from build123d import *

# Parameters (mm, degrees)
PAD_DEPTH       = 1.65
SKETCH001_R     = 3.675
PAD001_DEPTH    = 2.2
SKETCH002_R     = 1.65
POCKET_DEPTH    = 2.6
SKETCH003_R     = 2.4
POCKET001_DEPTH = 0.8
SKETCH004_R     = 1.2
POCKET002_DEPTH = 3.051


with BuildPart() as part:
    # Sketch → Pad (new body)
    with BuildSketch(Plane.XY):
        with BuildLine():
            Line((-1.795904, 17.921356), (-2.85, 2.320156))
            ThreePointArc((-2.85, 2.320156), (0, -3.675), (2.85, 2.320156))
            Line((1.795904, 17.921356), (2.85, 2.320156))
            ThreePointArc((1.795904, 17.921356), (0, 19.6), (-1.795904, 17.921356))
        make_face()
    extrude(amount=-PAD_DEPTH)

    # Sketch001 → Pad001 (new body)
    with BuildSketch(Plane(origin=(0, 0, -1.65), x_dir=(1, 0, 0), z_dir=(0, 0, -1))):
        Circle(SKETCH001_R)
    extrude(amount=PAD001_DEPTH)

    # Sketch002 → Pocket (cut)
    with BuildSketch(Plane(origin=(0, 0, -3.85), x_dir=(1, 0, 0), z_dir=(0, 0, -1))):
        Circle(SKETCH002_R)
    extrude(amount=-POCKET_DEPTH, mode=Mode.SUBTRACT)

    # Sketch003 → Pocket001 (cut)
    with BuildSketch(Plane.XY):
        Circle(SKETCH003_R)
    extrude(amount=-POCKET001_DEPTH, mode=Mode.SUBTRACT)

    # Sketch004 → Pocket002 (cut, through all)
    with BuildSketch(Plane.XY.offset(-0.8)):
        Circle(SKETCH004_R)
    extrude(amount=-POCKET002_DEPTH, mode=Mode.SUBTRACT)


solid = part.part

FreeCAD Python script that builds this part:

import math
import FreeCAD as App
import Part
import Sketcher
from FreeCAD import Vector
Q = App.Units.Quantity

doc = App.newDocument("Part")
params = doc.addObject("Spreadsheet::Sheet", "Params")
for row, (alias, value) in enumerate([
    ("sketch1_radius", "1.8 mm"),
    ("pad1_length", "1.65 mm"),
    ("sketch2_diameter", "7.35 mm"),
    ("pad2_length", "2.2 mm"),
    ("sketch3_diameter", "3.3 mm"),
    ("pocket1_length", "2.6 mm"),
    ("sketch4_diameter", "4.8 mm"),
    ("pocket2_length", "0.8 mm"),
    ("sketch5_diameter", "2.4 mm"),
], start=1):
    params.set(f"A{row}", alias)
    params.set(f"B{row}", "=" + value)
    params.setAlias(f"B{row}", alias)

body = doc.addObject("PartDesign::Body", "Body")

sketch1 = body.newObject("Sketcher::SketchObject", "Sketch")
sketch1.AttachmentSupport = (doc.getObject("XY_Plane"), [""])
sketch1.MapMode = "FlatFace"
sketch1.addGeometry([
    Part.LineSegment(Vector(-1.795904, 17.921356, 0), Vector(-2.85, 2.320156, 0)),
    Part.ArcOfCircle(Part.Circle(Vector(0, 0, 0), Vector(0, 0, 1), 3.675), math.radians(140.851314), math.radians(399.148686)),
    Part.LineSegment(Vector(2.85, 2.320156, 0), Vector(1.795904, 17.921356, 0)),
    Part.ArcOfCircle(Part.Circle(Vector(0, 17.8, 0), Vector(0, 0, 1), 1.8), math.radians(3.8658), math.radians(176.1342)),
], False)
sketch1.addConstraint([
    Sketcher.Constraint("Coincident", 0, 2, 1, 1),
    Sketcher.Constraint("Coincident", 1, 2, 2, 1),
    Sketcher.Constraint("Coincident", 2, 2, 3, 1),
    Sketcher.Constraint("Coincident", 3, 2, 0, 1),
    Sketcher.Constraint("Coincident", 1, 3, -1, 1),
    Sketcher.Constraint("Symmetric", 2, 2, 3, 2, -2),
    Sketcher.Constraint("Horizontal", 0, 2, 1, 2),
    Sketcher.Constraint("Radius", 3, Q("1.8 mm")),
    Sketcher.Constraint("Radius", 1, Q("3.675 mm")),
    Sketcher.Constraint("DistanceY", -1, 1, 3, 3, Q("17.8 mm")),
    Sketcher.Constraint("DistanceX", 0, 2, 1, 2, Q("5.7 mm")),
    Sketcher.Constraint("DistanceY", 1, 2, 2, 2, Q("15.6012 mm")),
])
sketch1.setExpression("Constraints[7]", "Params.sketch1_radius")
pad1 = body.newObject("PartDesign::Pad", "Pad")
pad1.Profile = sketch1
pad1.setExpression("Length", "Params.pad1_length")
pad1.Reversed = True

sketch2 = body.newObject("Sketcher::SketchObject", "Sketch001")
sketch2.AttachmentSupport = (doc.getObject("XY_Plane"), [""])
sketch2.MapMode = "FlatFace"
sketch2.AttachmentOffset = App.Placement(Vector(0, 0, -1.65), App.Rotation())
sketch2.addGeometry(Part.Circle(Vector(0, 0, 0), Vector(0, 0, 1), 3.675), False)
sketch2.addConstraint([
    Sketcher.Constraint("Coincident", 0, 3, -1, 1),
    Sketcher.Constraint("Diameter", 0, Q("7.35 mm")),
])
sketch2.setExpression("Constraints[1]", "Params.sketch2_diameter")
pad2 = body.newObject("PartDesign::Pad", "Pad001")
pad2.Profile = sketch2
pad2.setExpression("Length", "Params.pad2_length")
pad2.Reversed = True

sketch3 = body.newObject("Sketcher::SketchObject", "Sketch002")
sketch3.AttachmentSupport = (doc.getObject("XY_Plane"), [""])
sketch3.MapMode = "FlatFace"
sketch3.AttachmentOffset = App.Placement(Vector(0, 0, -3.85), App.Rotation())
sketch3.addGeometry(Part.Circle(Vector(0, 0, 0), Vector(0, 0, 1), 1.65), False)
sketch3.addConstraint([
    Sketcher.Constraint("Coincident", 0, 3, -1, 1),
    Sketcher.Constraint("Diameter", 0, Q("3.3 mm")),
])
sketch3.setExpression("Constraints[1]", "Params.sketch3_diameter")
pocket1 = body.newObject("PartDesign::Pocket", "Pocket")
pocket1.Profile = sketch3
pocket1.setExpression("Length", "Params.pocket1_length")
pocket1.Reversed = True

sketch4 = body.newObject("Sketcher::SketchObject", "Sketch003")
sketch4.AttachmentSupport = (doc.getObject("XY_Plane"), [""])
sketch4.MapMode = "FlatFace"
sketch4.addGeometry(Part.Circle(Vector(0, 0, 0), Vector(0, 0, 1), 2.4), False)
sketch4.addConstraint([
    Sketcher.Constraint("Coincident", 0, 3, -1, 1),
    Sketcher.Constraint("Diameter", 0, Q("4.8 mm")),
])
sketch4.setExpression("Constraints[1]", "Params.sketch4_diameter")
pocket2 = body.newObject("PartDesign::Pocket", "Pocket001")
pocket2.Profile = sketch4
pocket2.setExpression("Length", "Params.pocket2_length")

sketch5 = body.newObject("Sketcher::SketchObject", "Sketch004")
sketch5.AttachmentSupport = (doc.getObject("XY_Plane"), [""])
sketch5.MapMode = "FlatFace"
sketch5.AttachmentOffset = App.Placement(Vector(0, 0, -0.8), App.Rotation())
sketch5.addGeometry(Part.Circle(Vector(0, 0, 0), Vector(0, 0, 1), 1.2), False)
sketch5.addConstraint([
    Sketcher.Constraint("Coincident", 0, 3, -1, 1),
    Sketcher.Constraint("Diameter", 0, Q("2.4 mm")),
])
sketch5.setExpression("Constraints[1]", "Params.sketch5_diameter")
pocket3 = body.newObject("PartDesign::Pocket", "Pocket002")
pocket3.Profile = sketch5
pocket3.Type = "ThroughAll"

doc.recompute()
